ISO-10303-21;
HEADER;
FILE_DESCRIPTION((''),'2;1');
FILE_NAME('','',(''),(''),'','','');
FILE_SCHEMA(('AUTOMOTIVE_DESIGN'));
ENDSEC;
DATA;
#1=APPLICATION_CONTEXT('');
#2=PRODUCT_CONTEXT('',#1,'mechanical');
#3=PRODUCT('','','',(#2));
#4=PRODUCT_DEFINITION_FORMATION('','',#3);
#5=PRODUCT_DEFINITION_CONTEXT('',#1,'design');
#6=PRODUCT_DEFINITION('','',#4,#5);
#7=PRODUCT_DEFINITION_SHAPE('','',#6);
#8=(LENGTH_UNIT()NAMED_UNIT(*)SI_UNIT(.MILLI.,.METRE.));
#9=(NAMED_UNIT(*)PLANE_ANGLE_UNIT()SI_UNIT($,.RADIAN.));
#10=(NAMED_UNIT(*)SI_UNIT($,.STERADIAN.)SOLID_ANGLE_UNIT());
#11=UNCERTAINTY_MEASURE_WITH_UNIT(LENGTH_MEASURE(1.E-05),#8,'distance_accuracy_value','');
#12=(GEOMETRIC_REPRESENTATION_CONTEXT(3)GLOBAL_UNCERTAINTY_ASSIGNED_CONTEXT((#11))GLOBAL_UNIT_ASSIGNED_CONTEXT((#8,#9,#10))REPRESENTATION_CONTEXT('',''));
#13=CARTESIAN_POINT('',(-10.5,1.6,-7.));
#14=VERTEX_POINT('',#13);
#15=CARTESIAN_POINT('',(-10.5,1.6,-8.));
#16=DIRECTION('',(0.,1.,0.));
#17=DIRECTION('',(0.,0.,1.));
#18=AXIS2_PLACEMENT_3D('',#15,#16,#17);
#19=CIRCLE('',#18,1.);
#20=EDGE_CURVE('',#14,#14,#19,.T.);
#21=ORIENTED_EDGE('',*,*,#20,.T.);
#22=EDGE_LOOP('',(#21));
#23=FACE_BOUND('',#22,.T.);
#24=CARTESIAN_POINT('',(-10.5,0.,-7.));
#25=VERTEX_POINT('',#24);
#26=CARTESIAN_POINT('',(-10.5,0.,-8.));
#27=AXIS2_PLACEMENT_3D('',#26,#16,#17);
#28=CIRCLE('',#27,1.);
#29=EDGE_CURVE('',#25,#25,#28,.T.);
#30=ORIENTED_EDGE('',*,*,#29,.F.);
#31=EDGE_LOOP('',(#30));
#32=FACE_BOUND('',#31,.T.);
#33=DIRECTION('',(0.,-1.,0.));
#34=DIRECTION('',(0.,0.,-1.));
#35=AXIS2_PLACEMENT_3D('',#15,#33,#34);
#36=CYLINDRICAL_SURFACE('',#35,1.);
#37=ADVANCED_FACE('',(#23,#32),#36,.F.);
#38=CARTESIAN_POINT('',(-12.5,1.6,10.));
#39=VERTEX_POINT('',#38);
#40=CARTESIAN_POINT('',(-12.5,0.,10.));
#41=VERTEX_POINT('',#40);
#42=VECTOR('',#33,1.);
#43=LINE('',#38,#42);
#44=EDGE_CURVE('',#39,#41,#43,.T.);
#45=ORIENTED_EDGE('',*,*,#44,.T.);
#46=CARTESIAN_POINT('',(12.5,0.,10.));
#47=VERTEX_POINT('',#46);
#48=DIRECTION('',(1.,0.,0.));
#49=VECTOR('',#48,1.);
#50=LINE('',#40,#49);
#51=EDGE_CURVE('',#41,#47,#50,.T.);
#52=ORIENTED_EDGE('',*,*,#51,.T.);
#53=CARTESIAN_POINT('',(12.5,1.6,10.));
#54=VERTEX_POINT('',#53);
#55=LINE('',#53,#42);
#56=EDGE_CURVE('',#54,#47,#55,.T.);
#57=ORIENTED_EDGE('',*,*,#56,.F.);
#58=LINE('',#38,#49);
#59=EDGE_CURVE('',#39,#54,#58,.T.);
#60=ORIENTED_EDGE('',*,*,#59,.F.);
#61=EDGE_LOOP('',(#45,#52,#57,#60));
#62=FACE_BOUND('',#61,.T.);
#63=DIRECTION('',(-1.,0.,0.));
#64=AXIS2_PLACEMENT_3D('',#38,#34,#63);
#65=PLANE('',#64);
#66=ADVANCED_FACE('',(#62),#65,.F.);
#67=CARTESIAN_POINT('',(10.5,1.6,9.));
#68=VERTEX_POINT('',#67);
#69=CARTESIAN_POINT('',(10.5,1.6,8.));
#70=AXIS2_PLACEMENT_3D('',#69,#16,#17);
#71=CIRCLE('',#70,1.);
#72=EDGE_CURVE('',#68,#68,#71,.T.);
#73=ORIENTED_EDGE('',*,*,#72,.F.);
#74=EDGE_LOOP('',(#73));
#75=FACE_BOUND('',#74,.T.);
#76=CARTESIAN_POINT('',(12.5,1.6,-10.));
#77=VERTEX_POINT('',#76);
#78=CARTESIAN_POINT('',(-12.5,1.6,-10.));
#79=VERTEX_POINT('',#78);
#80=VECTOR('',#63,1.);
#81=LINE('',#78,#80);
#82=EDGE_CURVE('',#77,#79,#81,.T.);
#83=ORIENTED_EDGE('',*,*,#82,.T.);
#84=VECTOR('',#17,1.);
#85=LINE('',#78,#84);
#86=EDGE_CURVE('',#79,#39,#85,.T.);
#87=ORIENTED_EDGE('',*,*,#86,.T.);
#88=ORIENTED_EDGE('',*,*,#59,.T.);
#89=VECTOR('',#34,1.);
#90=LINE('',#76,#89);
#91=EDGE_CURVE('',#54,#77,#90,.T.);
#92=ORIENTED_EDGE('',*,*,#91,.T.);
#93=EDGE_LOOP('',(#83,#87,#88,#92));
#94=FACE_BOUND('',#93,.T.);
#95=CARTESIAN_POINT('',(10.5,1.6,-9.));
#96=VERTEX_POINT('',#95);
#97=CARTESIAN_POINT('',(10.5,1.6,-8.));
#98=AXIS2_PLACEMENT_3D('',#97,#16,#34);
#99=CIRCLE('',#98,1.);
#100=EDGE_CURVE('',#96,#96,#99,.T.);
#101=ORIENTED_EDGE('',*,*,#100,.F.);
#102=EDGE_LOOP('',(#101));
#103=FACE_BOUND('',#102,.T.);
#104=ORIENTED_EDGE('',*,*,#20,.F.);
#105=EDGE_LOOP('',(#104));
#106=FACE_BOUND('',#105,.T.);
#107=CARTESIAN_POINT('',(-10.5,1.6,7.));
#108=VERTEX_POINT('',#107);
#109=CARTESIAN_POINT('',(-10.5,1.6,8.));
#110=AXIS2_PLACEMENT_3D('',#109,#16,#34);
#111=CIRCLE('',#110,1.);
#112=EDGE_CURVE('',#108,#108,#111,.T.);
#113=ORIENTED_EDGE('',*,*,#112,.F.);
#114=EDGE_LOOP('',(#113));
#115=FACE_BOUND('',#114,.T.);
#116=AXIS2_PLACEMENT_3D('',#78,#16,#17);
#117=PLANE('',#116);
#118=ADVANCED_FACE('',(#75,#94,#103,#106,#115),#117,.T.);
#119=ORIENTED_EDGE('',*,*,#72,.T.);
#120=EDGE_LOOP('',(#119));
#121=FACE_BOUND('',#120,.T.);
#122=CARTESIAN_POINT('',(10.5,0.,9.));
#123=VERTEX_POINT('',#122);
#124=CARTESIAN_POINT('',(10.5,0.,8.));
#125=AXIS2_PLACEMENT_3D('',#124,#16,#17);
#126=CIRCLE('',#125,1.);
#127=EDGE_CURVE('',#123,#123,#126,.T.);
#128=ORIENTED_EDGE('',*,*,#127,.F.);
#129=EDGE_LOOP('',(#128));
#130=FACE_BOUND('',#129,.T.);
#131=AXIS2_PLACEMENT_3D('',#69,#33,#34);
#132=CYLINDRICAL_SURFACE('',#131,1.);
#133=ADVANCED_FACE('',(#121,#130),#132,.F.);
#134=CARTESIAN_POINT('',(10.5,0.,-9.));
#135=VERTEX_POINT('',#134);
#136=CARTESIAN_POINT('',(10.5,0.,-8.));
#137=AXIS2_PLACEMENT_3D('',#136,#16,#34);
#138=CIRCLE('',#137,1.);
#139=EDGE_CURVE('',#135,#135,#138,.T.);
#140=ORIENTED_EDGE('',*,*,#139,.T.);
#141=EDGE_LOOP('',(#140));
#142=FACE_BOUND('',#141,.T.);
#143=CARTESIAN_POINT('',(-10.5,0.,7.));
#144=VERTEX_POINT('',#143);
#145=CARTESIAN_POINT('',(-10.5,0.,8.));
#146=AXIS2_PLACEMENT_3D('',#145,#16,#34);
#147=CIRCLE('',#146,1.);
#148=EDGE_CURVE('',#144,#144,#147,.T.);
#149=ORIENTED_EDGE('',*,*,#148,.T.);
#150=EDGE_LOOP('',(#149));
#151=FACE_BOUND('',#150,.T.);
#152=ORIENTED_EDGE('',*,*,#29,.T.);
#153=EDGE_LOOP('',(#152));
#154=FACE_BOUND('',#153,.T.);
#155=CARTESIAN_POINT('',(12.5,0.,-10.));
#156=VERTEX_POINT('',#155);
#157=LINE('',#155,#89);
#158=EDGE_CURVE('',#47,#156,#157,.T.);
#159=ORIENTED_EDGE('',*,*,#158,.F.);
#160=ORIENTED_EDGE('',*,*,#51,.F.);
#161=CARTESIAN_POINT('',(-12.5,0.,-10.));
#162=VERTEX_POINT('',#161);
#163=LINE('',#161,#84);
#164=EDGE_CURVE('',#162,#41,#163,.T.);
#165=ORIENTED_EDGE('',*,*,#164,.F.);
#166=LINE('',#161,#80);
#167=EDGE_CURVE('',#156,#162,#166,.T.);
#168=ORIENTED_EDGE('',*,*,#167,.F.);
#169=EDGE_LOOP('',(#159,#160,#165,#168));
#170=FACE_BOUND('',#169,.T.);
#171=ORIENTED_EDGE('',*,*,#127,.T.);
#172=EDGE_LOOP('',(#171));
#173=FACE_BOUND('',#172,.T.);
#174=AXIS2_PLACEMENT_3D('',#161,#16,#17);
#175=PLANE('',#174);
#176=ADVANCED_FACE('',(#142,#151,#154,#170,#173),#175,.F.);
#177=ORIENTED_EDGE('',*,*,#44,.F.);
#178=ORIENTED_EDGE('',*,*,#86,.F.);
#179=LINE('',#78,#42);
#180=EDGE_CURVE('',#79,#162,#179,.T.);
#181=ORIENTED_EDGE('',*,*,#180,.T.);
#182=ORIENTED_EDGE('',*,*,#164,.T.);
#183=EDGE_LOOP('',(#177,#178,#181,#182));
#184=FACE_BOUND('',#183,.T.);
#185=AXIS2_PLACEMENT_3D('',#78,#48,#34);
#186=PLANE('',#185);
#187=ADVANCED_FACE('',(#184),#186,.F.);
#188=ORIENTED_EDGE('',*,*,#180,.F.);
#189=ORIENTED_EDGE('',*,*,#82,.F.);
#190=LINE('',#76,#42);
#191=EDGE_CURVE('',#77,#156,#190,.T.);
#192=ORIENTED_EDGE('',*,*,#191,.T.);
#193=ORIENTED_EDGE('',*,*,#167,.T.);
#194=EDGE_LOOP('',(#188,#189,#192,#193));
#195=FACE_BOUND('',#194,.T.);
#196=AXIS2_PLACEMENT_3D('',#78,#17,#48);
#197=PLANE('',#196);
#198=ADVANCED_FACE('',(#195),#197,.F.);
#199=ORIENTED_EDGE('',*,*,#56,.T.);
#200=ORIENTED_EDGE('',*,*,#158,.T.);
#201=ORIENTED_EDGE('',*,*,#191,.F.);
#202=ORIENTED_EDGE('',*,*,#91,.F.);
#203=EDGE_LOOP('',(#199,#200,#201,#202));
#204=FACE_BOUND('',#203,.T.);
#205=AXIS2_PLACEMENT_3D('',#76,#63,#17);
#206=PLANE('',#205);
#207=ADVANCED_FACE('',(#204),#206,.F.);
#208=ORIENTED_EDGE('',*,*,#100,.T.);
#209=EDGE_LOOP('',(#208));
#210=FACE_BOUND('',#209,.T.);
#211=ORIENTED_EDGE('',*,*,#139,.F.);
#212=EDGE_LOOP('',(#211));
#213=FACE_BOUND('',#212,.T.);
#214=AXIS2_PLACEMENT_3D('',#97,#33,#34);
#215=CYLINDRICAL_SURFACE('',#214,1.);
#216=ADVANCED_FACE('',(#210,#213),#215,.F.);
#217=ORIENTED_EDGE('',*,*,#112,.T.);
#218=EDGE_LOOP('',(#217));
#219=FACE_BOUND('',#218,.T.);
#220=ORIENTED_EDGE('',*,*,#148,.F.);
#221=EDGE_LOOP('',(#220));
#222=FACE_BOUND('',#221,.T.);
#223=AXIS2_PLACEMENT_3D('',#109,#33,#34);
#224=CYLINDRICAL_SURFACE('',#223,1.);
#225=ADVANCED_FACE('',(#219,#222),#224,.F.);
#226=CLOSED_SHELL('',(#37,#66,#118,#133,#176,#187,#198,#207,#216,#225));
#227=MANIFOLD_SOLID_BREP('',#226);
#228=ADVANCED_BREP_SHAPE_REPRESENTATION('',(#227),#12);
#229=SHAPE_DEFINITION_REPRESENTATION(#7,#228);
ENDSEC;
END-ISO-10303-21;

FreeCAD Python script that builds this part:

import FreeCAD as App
import Part
import Sketcher


def add_polygon(sketch, points):
    """Adds a closed chain of lines whose ends are joined by coincident constraints."""
    first, n = sketch.GeometryCount, len(points)
    for a, b in zip(points, points[1:] + points[:1]):
        sketch.addGeometry(Part.LineSegment(App.Vector(*a, 0), App.Vector(*b, 0)), False)
    for i in range(n):
        sketch.addConstraint(Sketcher.Constraint("Coincident", first + i, 2, first + (i + 1) % n, 1))

doc = App.newDocument("Part")
body = doc.addObject("PartDesign::Body", "Body")

sketch1 = body.newObject("Sketcher::SketchObject", "Sketch")
sketch1.AttachmentSupport = (doc.getObject("XZ_Plane"), [""])
sketch1.MapMode = "FlatFace"
add_polygon(sketch1, [(-12.5, -10), (-12.5, 10), (12.5, 10), (12.5, -10)])
sketch1.addGeometry(Part.Circle(App.Vector(-10.5, 8, 0), App.Vector(0, 0, 1), 1), False)
sketch1.addGeometry(Part.Circle(App.Vector(10.5, 8, 0), App.Vector(0, 0, 1), 1), False)
sketch1.addGeometry(Part.Circle(App.Vector(-10.5, -8, 0), App.Vector(0, 0, 1), 1), False)
sketch1.addGeometry(Part.Circle(App.Vector(10.5, -8, 0), App.Vector(0, 0, 1), 1), False)
sketch1.addConstraint(Sketcher.Constraint("Vertical", 0))
sketch1.addConstraint(Sketcher.Constraint("Horizontal", 1))
sketch1.addConstraint(Sketcher.Constraint("Vertical", 2))
sketch1.addConstraint(Sketcher.Constraint("Horizontal", 3))
sketch1.addConstraint(Sketcher.Constraint("Equal", 4, 5))
sketch1.addConstraint(Sketcher.Constraint("Equal", 5, 6))
sketch1.addConstraint(Sketcher.Constraint("Equal", 6, 7))
sketch1.addConstraint(Sketcher.Constraint("Symmetric", 5, 3, 6, 3, -1, 1))
sketch1.addConstraint(Sketcher.Constraint("Symmetric", 4, 3, 7, 3, -1, 1))
sketch1.addConstraint(Sketcher.Constraint("Symmetric", 0, 2, 2, 2, -1, 1))
sketch1.addConstraint(Sketcher.Constraint("Symmetric", 4, 3, 5, 3, -2))
sketch1.addConstraint(Sketcher.Constraint("Diameter", 4, 2.0))
sketch1.addConstraint(Sketcher.Constraint("DistanceX", 1, 1, 1, 2, 25.0))
sketch1.addConstraint(Sketcher.Constraint("DistanceY", 0, 1, 0, 2, 20.0))
sketch1.addConstraint(Sketcher.Constraint("DistanceY", -1, 1, 4, 3, 8.0))
sketch1.addConstraint(Sketcher.Constraint("DistanceX", 4, 3, 5, 3, 21.0))
pad1 = body.newObject("PartDesign::Pad", "Pad")
pad1.Profile = sketch1
pad1.Length = 1.6
pad1.Reversed = True

doc.recompute()
